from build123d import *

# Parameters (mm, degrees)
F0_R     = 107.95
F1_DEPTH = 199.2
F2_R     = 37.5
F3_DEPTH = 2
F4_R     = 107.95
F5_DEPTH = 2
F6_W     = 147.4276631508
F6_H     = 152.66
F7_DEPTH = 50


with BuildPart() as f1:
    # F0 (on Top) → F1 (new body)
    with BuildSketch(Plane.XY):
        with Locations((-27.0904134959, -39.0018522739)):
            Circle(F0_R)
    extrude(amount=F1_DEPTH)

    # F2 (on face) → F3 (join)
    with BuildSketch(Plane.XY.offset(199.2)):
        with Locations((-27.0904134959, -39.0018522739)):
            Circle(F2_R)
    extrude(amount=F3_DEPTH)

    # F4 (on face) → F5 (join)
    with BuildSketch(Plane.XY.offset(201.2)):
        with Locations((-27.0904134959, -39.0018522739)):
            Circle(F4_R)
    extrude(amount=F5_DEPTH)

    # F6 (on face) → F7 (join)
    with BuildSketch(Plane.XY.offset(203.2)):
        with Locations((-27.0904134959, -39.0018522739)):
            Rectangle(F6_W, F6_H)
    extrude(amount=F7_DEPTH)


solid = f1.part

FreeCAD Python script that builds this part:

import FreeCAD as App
import Part
import Sketcher

V = App.Vector

doc = App.newDocument("Part")
params = doc.addObject("Spreadsheet::Sheet", "Params")
for row, (alias, value) in enumerate([
    ("sketch1_diameter", "215.9 mm"),
    ("pad1_length", "199.2 mm"),
    ("sketch2_diameter", "75 mm"),
    ("pad2_length", "2 mm"),
    ("sketch3_diameter", "215.9 mm"),
    ("pad3_length", "2 mm"),
    ("sketch4_height", "152.66 mm"),
    ("pad4_length", "50 mm"),
], start=1):
    params.set(f"A{row}", alias)
    params.set(f"B{row}", "=" + value)
    params.setAlias(f"B{row}", alias)

body = doc.addObject("PartDesign::Body", "Body")

sketch1 = body.newObject("Sketcher::SketchObject", "Sketch")
sketch1.AttachmentSupport = (doc.getObject("XY_Plane"), [""])
sketch1.MapMode = "FlatFace"
sketch1.addGeometry(Part.Circle(V(-27.090413, -39.001852, 0), V(0, 0, 1), 107.95), False)
sketch1.addConstraint([
    Sketcher.Constraint("Diameter", 0, 215.9),
    Sketcher.Constraint("DistanceX", 0, 3, -1, 1, 27.090413),
    Sketcher.Constraint("DistanceY", 0, 3, -1, 1, 39.001852),
])
sketch1.setExpression("Constraints[0]", "Params.sketch1_diameter")
pad1 = body.newObject("PartDesign::Pad", "Pad")
pad1.Profile = sketch1
pad1.setExpression("Length", "Params.pad1_length")

sketch2 = body.newObject("Sketcher::SketchObject", "Sketch001")
sketch2.AttachmentSupport = (doc.getObject("XY_Plane"), [""])
sketch2.MapMode = "FlatFace"
sketch2.AttachmentOffset = App.Placement(V(0, 0, 199.2), App.Rotation())
sketch2.addGeometry(Part.Circle(V(-27.090413, -39.001852, 0), V(0, 0, 1), 37.5), False)
sketch2.addConstraint([
    Sketcher.Constraint("Diameter", 0, 75.0),
    Sketcher.Constraint("DistanceX", 0, 3, -1, 1, 27.090413),
    Sketcher.Constraint("DistanceY", 0, 3, -1, 1, 39.001852),
])
sketch2.setExpression("Constraints[0]", "Params.sketch2_diameter")
pad2 = body.newObject("PartDesign::Pad", "Pad001")
pad2.Profile = sketch2
pad2.setExpression("Length", "Params.pad2_length")

sketch3 = body.newObject("Sketcher::SketchObject", "Sketch002")
sketch3.AttachmentSupport = (doc.getObject("XY_Plane"), [""])
sketch3.MapMode = "FlatFace"
sketch3.AttachmentOffset = App.Placement(V(0, 0, 201.2), App.Rotation())
sketch3.addGeometry(Part.Circle(V(-27.090413, -39.001852, 0), V(0, 0, 1), 107.95), False)
sketch3.addConstraint([
    Sketcher.Constraint("Diameter", 0, 215.9),
    Sketcher.Constraint("DistanceX", 0, 3, -1, 1, 27.090413),
    Sketcher.Constraint("DistanceY", 0, 3, -1, 1, 39.001852),
])
sketch3.setExpression("Constraints[0]", "Params.sketch3_diameter")
pad3 = body.newObject("PartDesign::Pad", "Pad002")
pad3.Profile = sketch3
pad3.setExpression("Length", "Params.pad3_length")

sketch4 = body.newObject("Sketcher::SketchObject", "Sketch003")
sketch4.AttachmentSupport = (doc.getObject("XY_Plane"), [""])
sketch4.MapMode = "FlatFace"
sketch4.AttachmentOffset = App.Placement(V(0, 0, 203.2), App.Rotation())
sketch4.addGeometry([
    Part.LineSegment(V(-100.804245, 37.328148, 0), V(-100.804245, -115.331852, 0)),
    Part.LineSegment(V(-100.804245, -115.331852, 0), V(46.623418, -115.331852, 0)),
    Part.LineSegment(V(46.623418, -115.331852, 0), V(46.623418, 37.328148, 0)),
    Part.LineSegment(V(46.623418, 37.328148, 0), V(-100.804245, 37.328148, 0)),
], False)
sketch4.addConstraint([
    Sketcher.Constraint("Coincident", 0, 2, 1, 1),
    Sketcher.Constraint("Coincident", 1, 2, 2, 1),
    Sketcher.Constraint("Coincident", 2, 2, 3, 1),
    Sketcher.Constraint("Coincident", 3, 2, 0, 1),
    Sketcher.Constraint("Vertical", 0),
    Sketcher.Constraint("Horizontal", 1),
    Sketcher.Constraint("Vertical", 2),
    Sketcher.Constraint("Horizontal", 3),
    Sketcher.Constraint("DistanceY", 0, 2, 0, 1, 152.66),
    Sketcher.Constraint("DistanceX", 1, 1, 1, 2, 147.427663),
    Sketcher.Constraint("DistanceX", -1, 1, 1, 2, 46.623418),
    Sketcher.Constraint("DistanceY", 0, 2, -1, 1, 115.331852),
])
sketch4.setExpression("Constraints[8]", "Params.sketch4_height")
pad4 = body.newObject("PartDesign::Pad", "Pad003")
pad4.Profile = sketch4
pad4.setExpression("Length", "Params.pad4_length")

doc.recompute()
